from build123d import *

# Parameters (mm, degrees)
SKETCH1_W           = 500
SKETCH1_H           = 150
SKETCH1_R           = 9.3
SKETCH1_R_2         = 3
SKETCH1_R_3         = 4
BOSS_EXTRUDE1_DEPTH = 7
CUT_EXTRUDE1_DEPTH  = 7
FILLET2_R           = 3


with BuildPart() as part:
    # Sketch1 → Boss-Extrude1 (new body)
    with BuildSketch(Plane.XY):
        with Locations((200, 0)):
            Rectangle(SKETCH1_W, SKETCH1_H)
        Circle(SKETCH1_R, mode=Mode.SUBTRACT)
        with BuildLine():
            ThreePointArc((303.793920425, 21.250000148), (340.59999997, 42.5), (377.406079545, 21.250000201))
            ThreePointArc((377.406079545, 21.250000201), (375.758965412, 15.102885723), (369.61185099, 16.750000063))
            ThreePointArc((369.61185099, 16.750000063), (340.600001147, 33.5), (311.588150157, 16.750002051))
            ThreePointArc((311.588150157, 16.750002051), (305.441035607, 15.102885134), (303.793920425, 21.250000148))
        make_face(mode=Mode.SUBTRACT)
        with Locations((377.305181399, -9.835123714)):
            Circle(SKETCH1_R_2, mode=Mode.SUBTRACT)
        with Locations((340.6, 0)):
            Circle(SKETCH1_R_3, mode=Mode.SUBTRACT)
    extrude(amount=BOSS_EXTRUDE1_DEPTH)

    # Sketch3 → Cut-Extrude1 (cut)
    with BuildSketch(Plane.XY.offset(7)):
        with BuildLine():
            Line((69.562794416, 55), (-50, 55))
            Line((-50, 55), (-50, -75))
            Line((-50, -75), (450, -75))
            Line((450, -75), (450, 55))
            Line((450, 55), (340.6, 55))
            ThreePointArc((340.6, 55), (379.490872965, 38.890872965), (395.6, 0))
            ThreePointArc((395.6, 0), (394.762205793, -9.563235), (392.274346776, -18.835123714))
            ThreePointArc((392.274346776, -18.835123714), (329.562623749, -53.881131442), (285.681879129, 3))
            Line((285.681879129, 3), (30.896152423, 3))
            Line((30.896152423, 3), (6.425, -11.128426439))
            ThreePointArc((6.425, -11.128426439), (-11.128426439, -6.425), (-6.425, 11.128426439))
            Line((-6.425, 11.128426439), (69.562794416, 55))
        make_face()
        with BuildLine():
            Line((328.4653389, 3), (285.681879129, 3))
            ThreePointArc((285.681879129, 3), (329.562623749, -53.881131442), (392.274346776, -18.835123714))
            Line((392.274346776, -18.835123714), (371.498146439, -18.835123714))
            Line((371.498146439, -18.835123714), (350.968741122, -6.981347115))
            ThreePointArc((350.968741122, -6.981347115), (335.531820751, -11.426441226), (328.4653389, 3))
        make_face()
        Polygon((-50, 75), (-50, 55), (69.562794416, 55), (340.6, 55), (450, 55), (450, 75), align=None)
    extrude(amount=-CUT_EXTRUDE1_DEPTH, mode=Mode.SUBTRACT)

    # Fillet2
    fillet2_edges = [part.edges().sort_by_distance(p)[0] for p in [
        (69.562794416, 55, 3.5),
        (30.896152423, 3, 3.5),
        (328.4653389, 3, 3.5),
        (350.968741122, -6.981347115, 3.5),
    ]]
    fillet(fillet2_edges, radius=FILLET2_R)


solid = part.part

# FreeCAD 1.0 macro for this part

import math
import FreeCAD as App
import Part
import Sketcher
Q = App.Units.Quantity


def edges_at(feature, points):
    """Names of the edges that pass closest to the given points."""
    edges = feature.Shape.Edges
    near = lambda p: min(range(len(edges)), key=lambda i: edges[i].distToShape(Part.Vertex(*p))[0])
    return sorted({f"Edge{near(p) + 1}" for p in points})

doc = App.newDocument("Part")
body = doc.addObject("PartDesign::Body", "Body")

sketch1 = doc.addObject("Sketcher::SketchObject", "Sketch")
body.addObject(sketch1)
sketch1.AttachmentSupport = (doc.XY_Plane, [""])
sketch1.MapMode = "FlatFace"
sketch1.addGeometry(Part.LineSegment(App.Vector(-50, 75, 0), App.Vector(-50, -75, 0)), False)
sketch1.addGeometry(Part.LineSegment(App.Vector(-50, -75, 0), App.Vector(450, -75, 0)), False)
sketch1.addGeometry(Part.LineSegment(App.Vector(450, -75, 0), App.Vector(450, 75, 0)), False)
sketch1.addGeometry(Part.LineSegment(App.Vector(450, 75, 0), App.Vector(-50, 75, 0)), False)
sketch1.addGeometry(Part.Circle(App.Vector(0, 0, 0), App.Vector(0, 0, 1), 9.3), False)
sketch1.addGeometry(Part.Circle(App.Vector(377.305181, -9.835124, 0), App.Vector(0, 0, 1), 3), False)
sketch1.addGeometry(Part.Circle(App.Vector(340.6, 0, 0), App.Vector(0, 0, 1), 4), False)
sketch1.addGeometry(Part.ArcOfCircle(Part.Circle(App.Vector(307.691035, 19, 0), App.Vector(0, 0, 1), 4.5), math.radians(149.999998), math.radians(330.00003)), False)
sketch1.addGeometry(Part.ArcOfCircle(Part.Circle(App.Vector(340.6, 0, 0), App.Vector(0, 0, 1), 42.5), math.radians(30), math.radians(150)), False)
sketch1.addGeometry(Part.ArcOfCircle(Part.Circle(App.Vector(373.508965, 19, 0), App.Vector(0, 0, 1), 4.5), math.radians(-150.000001), math.radians(30.000003)), False)
sketch1.addGeometry(Part.ArcOfCircle(Part.Circle(App.Vector(340.6, 0, 0), App.Vector(0, 0, 1), 33.5), math.radians(30), math.radians(149.999996)), False)
sketch1.addConstraint(Sketcher.Constraint("Coincident", 0, 2, 1, 1))
sketch1.addConstraint(Sketcher.Constraint("Coincident", 1, 2, 2, 1))
sketch1.addConstraint(Sketcher.Constraint("Coincident", 2, 2, 3, 1))
sketch1.addConstraint(Sketcher.Constraint("Coincident", 3, 2, 0, 1))
sketch1.addConstraint(Sketcher.Constraint("Tangent", 7, 1, 8, 2))
sketch1.addConstraint(Sketcher.Constraint("Tangent", 8, 1, 9, 2))
sketch1.addConstraint(Sketcher.Constraint("Tangent", 9, 1, 10, 1))
sketch1.addConstraint(Sketcher.Constraint("Tangent", 10, 2, 7, 2))
sketch1.addConstraint(Sketcher.Constraint("Vertical", 0))
sketch1.addConstraint(Sketcher.Constraint("Horizontal", 1))
sketch1.addConstraint(Sketcher.Constraint("Vertical", 2))
sketch1.addConstraint(Sketcher.Constraint("Horizontal", 3))
sketch1.addConstraint(Sketcher.Constraint("Coincident", 4, 3, -1, 1))
sketch1.addConstraint(Sketcher.Constraint("Coincident", 8, 3, 6, 3))
sketch1.addConstraint(Sketcher.Constraint("Coincident", 10, 3, 6, 3))
sketch1.addConstraint(Sketcher.Constraint("PointOnObject", 6, 3, -1))
sketch1.addConstraint(Sketcher.Constraint("Horizontal", 7, 3, 9, 3))
sketch1.addConstraint(Sketcher.Constraint("Diameter", 5, 6.0))
sketch1.addConstraint(Sketcher.Constraint("Diameter", 6, 8.0))
sketch1.addConstraint(Sketcher.Constraint("Diameter", 4, 18.6))
sketch1.addConstraint(Sketcher.Constraint("Radius", 7, 4.5))
sketch1.addConstraint(Sketcher.Constraint("Radius", 8, 42.5))
sketch1.addConstraint(Sketcher.Constraint("DistanceX", 1, 1, 1, 2, 500.0))
sketch1.addConstraint(Sketcher.Constraint("DistanceY", 0, 2, 0, 1, 150.0))
sketch1.addConstraint(Sketcher.Constraint("DistanceY", -1, 1, 7, 3, 19.0))
sketch1.addConstraint(Sketcher.Constraint("DistanceX", 0, 2, -1, 1, 50.0))
sketch1.addConstraint(Sketcher.Constraint("DistanceY", 0, 2, -1, 1, 75.0))
sketch1.addConstraint(Sketcher.Constraint("DistanceX", -1, 1, 6, 3, 340.6))
sketch1.addConstraint(Sketcher.Constraint("DistanceX", 5, 3, 8, 1, 0.100898))
sketch1.addConstraint(Sketcher.Constraint("DistanceY", 5, 3, -1, 1, 9.835124))
pad1 = doc.addObject("PartDesign::Pad", "Pad")
body.addObject(pad1)
pad1.Profile = sketch1
pad1.Length = 7

sketch2 = doc.addObject("Sketcher::SketchObject", "Sketch001")
body.addObject(sketch2)
sketch2.AttachmentSupport = (doc.XY_Plane, [""])
sketch2.MapMode = "FlatFace"
sketch2.AttachmentOffset = App.Placement(App.Vector(0, 0, 7), App.Rotation())
sketch2.addGeometry(Part.LineSegment(App.Vector(-50, -75, 0), App.Vector(450, -75, 0)), False)
sketch2.addGeometry(Part.LineSegment(App.Vector(450, -75, 0), App.Vector(450, 75, 0)), False)
sketch2.addGeometry(Part.LineSegment(App.Vector(450, 75, 0), App.Vector(-50, 75, 0)), False)
sketch2.addGeometry(Part.LineSegment(App.Vector(-50, 75, 0), App.Vector(-50, -75, 0)), False)
sketch2.addGeometry(Part.ArcOfCircle(Part.Circle(App.Vector(340.6, 0, 0), App.Vector(0, 0, 1), 55), math.radians(0), math.radians(90)), False)
sketch2.addGeometry(Part.ArcOfCircle(Part.Circle(App.Vector(340.6, 0, 0), App.Vector(0, 0, 1), 55), math.radians(-20.026626), math.radians(0)), False)
sketch2.addGeometry(Part.LineSegment(App.Vector(392.274347, -18.835124, 0), App.Vector(371.498146, -18.835124, 0)), False)
sketch2.addGeometry(Part.LineSegment(App.Vector(371.498146, -18.835124, 0), App.Vector(350.968741, -6.981347, 0)), False)
sketch2.addGeometry(Part.ArcOfCircle(Part.Circle(App.Vector(340.6, 0, 0), App.Vector(0, 0, 1), 12.5), math.radians(166.11346), math.radians(326.047337)), False)
sketch2.addGeometry(Part.LineSegment(App.Vector(328.465339, 3, 0), App.Vector(30.896152, 3, 0)), False)
sketch2.addGeometry(Part.LineSegment(App.Vector(30.896152, 3, 0), App.Vector(6.425, -11.128426, 0)), False)
sketch2.addGeometry(Part.ArcOfCircle(Part.Circle(App.Vector(0, 0, 0), App.Vector(0, 0, 1), 12.85), math.radians(120), math.radians(300)), False)
sketch2.addGeometry(Part.LineSegment(App.Vector(-6.425, 11.128426, 0), App.Vector(69.562794, 55, 0)), False)
sketch2.addGeometry(Part.LineSegment(App.Vector(69.562794, 55, 0), App.Vector(340.6, 55, 0)), False)
sketch2.addConstraint(Sketcher.Constraint("Coincident", 0, 2, 1, 1))
sketch2.addConstraint(Sketcher.Constraint("Coincident", 1, 2, 2, 1))
sketch2.addConstraint(Sketcher.Constraint("Coincident", 2, 2, 3, 1))
sketch2.addConstraint(Sketcher.Constraint("Coincident", 3, 2, 0, 1))
sketch2.addConstraint(Sketcher.Constraint("Tangent", 4, 1, 5, 2))
sketch2.addConstraint(Sketcher.Constraint("Coincident", 5, 1, 6, 1))
sketch2.addConstraint(Sketcher.Constraint("Coincident", 6, 2, 7, 1))
sketch2.addConstraint(Sketcher.Constraint("Coincident", 7, 2, 8, 2))
sketch2.addConstraint(Sketcher.Constraint("Coincident", 8, 1, 9, 1))
sketch2.addConstraint(Sketcher.Constraint("Coincident", 9, 2, 10, 1))
sketch2.addConstraint(Sketcher.Constraint("Tangent", 10, 2, 11, 2))
sketch2.addConstraint(Sketcher.Constraint("Tangent", 11, 1, 12, 1))
sketch2.addConstraint(Sketcher.Constraint("Coincident", 12, 2, 13, 1))
sketch2.addConstraint(Sketcher.Constraint("Tangent", 13, 2, 4, 2))
sketch2.addConstraint(Sketcher.Constraint("Horizontal", 0))
sketch2.addConstraint(Sketcher.Constraint("Vertical", 1))
sketch2.addConstraint(Sketcher.Constraint("Horizontal", 2))
sketch2.addConstraint(Sketcher.Constraint("Vertical", 3))
sketch2.addConstraint(Sketcher.Constraint("Horizontal", 6))
sketch2.addConstraint(Sketcher.Constraint("Horizontal", 9))
sketch2.addConstraint(Sketcher.Constraint("Horizontal", 13))
sketch2.addConstraint(Sketcher.Constraint("Coincident", 11, 3, -1, 1))
sketch2.addConstraint(Sketcher.Constraint("Coincident", 8, 3, 4, 3))
sketch2.addConstraint(Sketcher.Constraint("Equal", 4, 5))
sketch2.addConstraint(Sketcher.Constraint("PointOnObject", 4, 3, -1))
sketch2.addConstraint(Sketcher.Constraint("PointOnObject", 4, 1, -1))
sketch2.addConstraint(Sketcher.Constraint("Parallel", 10, 12))
sketch2.addConstraint(Sketcher.Constraint("Radius", 4, 55.0))
sketch2.addConstraint(Sketcher.Constraint("Radius", 8, 12.5))
sketch2.addConstraint(Sketcher.Constraint("DistanceX", 0, 1, 0, 2, 500.0))
sketch2.addConstraint(Sketcher.Constraint("DistanceY", 1, 1, 1, 2, 150.0))
sketch2.addConstraint(Sketcher.Constraint("Angle", 10, Q("-150 deg")))
sketch2.addConstraint(Sketcher.Constraint("Radius", 11, 12.85))
sketch2.addConstraint(Sketcher.Constraint("DistanceX", -1, 1, 0, 2, 450.0))
sketch2.addConstraint(Sketcher.Constraint("DistanceY", 0, 2, -1, 1, 75.0))
sketch2.addConstraint(Sketcher.Constraint("DistanceY", -1, 1, 8, 1, 3.0))
sketch2.addConstraint(Sketcher.Constraint("DistanceX", -1, 1, 4, 3, 340.6))
sketch2.addConstraint(Sketcher.Constraint("DistanceX", 6, 2, 6, 1, 20.7762))
sketch2.addConstraint(Sketcher.Constraint("DistanceX", -1, 1, 7, 2, 350.968741))
sketch2.addConstraint(Sketcher.Constraint("Distance", 7, 23.705875))
pocket1 = doc.addObject("PartDesign::Pocket", "Pocket")
body.addObject(pocket1)
pocket1.Profile = sketch2
pocket1.Length = 7
doc.recompute()

fillet = doc.addObject("PartDesign::Fillet", "Fillet")
body.addObject(fillet)
fillet.Base = (pocket1, edges_at(pocket1, [
    (69.563, 55, 3.5),
    (30.896, 3, 3.5),
    (328.465, 3, 3.5),
    (350.969, -6.981, 3.5),
]))
fillet.Radius = 3

doc.recompute()
